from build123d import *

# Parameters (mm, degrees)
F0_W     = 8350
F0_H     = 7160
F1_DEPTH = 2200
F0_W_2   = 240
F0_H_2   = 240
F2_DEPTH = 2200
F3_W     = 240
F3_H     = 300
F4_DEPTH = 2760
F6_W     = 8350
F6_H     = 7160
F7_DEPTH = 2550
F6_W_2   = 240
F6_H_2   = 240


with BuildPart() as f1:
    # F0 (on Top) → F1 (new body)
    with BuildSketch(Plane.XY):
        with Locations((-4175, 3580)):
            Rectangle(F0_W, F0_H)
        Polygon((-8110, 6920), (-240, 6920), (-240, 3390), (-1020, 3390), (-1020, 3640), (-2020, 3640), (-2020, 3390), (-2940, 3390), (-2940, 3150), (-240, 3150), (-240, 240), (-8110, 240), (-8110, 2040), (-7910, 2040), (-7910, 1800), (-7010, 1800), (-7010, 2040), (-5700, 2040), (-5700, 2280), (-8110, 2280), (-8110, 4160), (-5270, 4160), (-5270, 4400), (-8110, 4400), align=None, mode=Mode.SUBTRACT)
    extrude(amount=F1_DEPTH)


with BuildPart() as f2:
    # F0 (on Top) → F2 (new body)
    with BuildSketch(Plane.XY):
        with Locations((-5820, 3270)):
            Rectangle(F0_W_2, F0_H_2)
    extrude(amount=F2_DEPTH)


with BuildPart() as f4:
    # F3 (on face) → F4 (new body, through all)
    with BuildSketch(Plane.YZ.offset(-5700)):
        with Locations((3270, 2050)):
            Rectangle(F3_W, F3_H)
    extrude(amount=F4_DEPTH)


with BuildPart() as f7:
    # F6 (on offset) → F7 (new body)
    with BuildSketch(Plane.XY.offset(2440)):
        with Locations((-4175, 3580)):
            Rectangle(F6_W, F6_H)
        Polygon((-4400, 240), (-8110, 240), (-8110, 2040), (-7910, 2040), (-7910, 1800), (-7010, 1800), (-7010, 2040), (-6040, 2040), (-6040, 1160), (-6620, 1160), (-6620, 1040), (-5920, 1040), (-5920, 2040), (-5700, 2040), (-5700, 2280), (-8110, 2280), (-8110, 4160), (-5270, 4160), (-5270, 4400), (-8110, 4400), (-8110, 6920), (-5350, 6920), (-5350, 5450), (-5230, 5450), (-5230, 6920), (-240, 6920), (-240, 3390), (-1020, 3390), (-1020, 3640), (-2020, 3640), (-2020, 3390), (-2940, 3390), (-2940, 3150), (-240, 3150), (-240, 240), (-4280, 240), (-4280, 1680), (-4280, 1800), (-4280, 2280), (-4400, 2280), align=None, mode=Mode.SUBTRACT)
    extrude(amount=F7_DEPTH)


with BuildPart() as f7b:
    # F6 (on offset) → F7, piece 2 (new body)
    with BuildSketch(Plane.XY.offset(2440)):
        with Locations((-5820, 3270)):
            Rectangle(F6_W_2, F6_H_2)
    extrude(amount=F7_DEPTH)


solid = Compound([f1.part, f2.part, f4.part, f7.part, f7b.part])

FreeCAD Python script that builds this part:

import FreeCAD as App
import Part
import Sketcher

V = App.Vector


def add_polygon(sketch, points):
    """Adds a closed chain of lines whose ends are joined by coincident constraints."""
    first, n = sketch.GeometryCount, len(points)
    for a, b in zip(points, points[1:] + points[:1]):
        sketch.addGeometry(Part.LineSegment(App.Vector(*a, 0), App.Vector(*b, 0)), False)
    for i in range(n):
        sketch.addConstraint(Sketcher.Constraint("Coincident", first + i, 2, first + (i + 1) % n, 1))

doc = App.newDocument("Part")
body = doc.addObject("PartDesign::Body", "Body")

# Sketch on XY plane
sketch1 = body.newObject("Sketcher::SketchObject", "Sketch")
sketch1.AttachmentSupport = (doc.getObject("XY_Plane"), [""])
sketch1.MapMode = "FlatFace"
add_polygon(sketch1, [(-8350, 7160), (-8350, 0), (0, 0), (0, 7160)])  # lines 0-3
add_polygon(sketch1, [(-8110, 4400), (-8110, 6920), (-240, 6920), (-240, 3390), (-1020, 3390), (-1020, 3640), (-2020, 3640), (-2020, 3390), (-2940, 3390), (-2940, 3150), (-240, 3150), (-240, 240), (-8110, 240), (-8110, 2040), (-7910, 2040), (-7910, 1800), (-7010, 1800), (-7010, 2040), (-5700, 2040), (-5700, 2280), (-8110, 2280), (-8110, 4160), (-5270, 4160), (-5270, 4400)])  # lines 4-27
sketch1.addConstraint([
    Sketcher.Constraint("Vertical", 0),
    Sketcher.Constraint("Horizontal", 1),
    Sketcher.Constraint("Vertical", 2),
    Sketcher.Constraint("Horizontal", 3),
    Sketcher.Constraint("Vertical", 4),
    Sketcher.Constraint("Horizontal", 5),
    Sketcher.Constraint("Vertical", 6),
    Sketcher.Constraint("Horizontal", 7),
    Sketcher.Constraint("Vertical", 8),
    Sketcher.Constraint("Horizontal", 9),
    Sketcher.Constraint("Vertical", 10),
    Sketcher.Constraint("Horizontal", 11),
    Sketcher.Constraint("Vertical", 12),
    Sketcher.Constraint("Horizontal", 13),
    Sketcher.Constraint("Vertical", 14),
    Sketcher.Constraint("Horizontal", 15),
    Sketcher.Constraint("Vertical", 16),
    Sketcher.Constraint("Horizontal", 17),
    Sketcher.Constraint("Vertical", 18),
    Sketcher.Constraint("Horizontal", 19),
    Sketcher.Constraint("Vertical", 20),
    Sketcher.Constraint("Horizontal", 21),
    Sketcher.Constraint("Vertical", 22),
    Sketcher.Constraint("Horizontal", 23),
    Sketcher.Constraint("Vertical", 24),
    Sketcher.Constraint("Horizontal", 25),
    Sketcher.Constraint("Vertical", 26),
    Sketcher.Constraint("Horizontal", 27),
    Sketcher.Constraint("Coincident", 1, 2, -1, 1),
    Sketcher.Constraint("Horizontal", 7, 2, 10, 2),
    Sketcher.Constraint("Horizontal", 17, 2, 20, 2),
    Sketcher.Constraint("Vertical", 6, 2, 13, 2),
    Sketcher.Constraint("Vertical", 4, 2, 15, 2),
    Sketcher.Constraint("Vertical", 16, 2, 23, 2),
    Sketcher.Constraint("Equal", 12, 18),
    Sketcher.Constraint("Equal", 20, 22),
    Sketcher.Constraint("Equal", 22, 26),
    Sketcher.Constraint("DistanceX", 1, 1, 1, 2, 8350.0),
    Sketcher.Constraint("DistanceX", 5, 1, 5, 2, 7870.0),
    Sketcher.Constraint("DistanceX", 7, 2, 7, 1, 780.0),
    Sketcher.Constraint("DistanceX", 9, 2, 9, 1, 1000.0),
    Sketcher.Constraint("DistanceX", 11, 2, 11, 1, 920.0),
    Sketcher.Constraint("DistanceX", 17, 1, 17, 2, 200.0),
    Sketcher.Constraint("DistanceX", 19, 1, 19, 2, 900.0),
    Sketcher.Constraint("DistanceX", 21, 1, 21, 2, 1310.0),
    Sketcher.Constraint("DistanceX", 25, 1, 25, 2, 2840.0),
    Sketcher.Constraint("DistanceY", 0, 2, 0, 1, 7160.0),
    Sketcher.Constraint("DistanceY", 4, 1, 4, 2, 2520.0),
    Sketcher.Constraint("DistanceY", 6, 2, 6, 1, 3530.0),
    Sketcher.Constraint("DistanceY", 8, 1, 8, 2, 250.0),
    Sketcher.Constraint("DistanceY", 12, 2, 12, 1, 240.0),
    Sketcher.Constraint("DistanceY", 14, 2, 14, 1, 2910.0),
    Sketcher.Constraint("DistanceY", 16, 1, 16, 2, 1800.0),
    Sketcher.Constraint("DistanceX", 4, 2, -1, 1, 8110.0),
    Sketcher.Constraint("DistanceY", -1, 1, 4, 2, 6920.0),
])
pad1 = body.newObject("PartDesign::Pad", "Pad")
pad1.Profile = sketch1
pad1.Length = 2200
body2 = doc.addObject("PartDesign::Body", "Body001")

# Sketch on XY plane
sketch2 = body2.newObject("Sketcher::SketchObject", "Sketch001")
sketch2.AttachmentSupport = (doc.getObject("XY_Plane001"), [""])
sketch2.MapMode = "FlatFace"
add_polygon(sketch2, [(-5940, 3390), (-5940, 3150), (-5700, 3150), (-5700, 3390)])  # lines 0-3
sketch2.addConstraint([
    Sketcher.Constraint("Vertical", 0),
    Sketcher.Constraint("Horizontal", 1),
    Sketcher.Constraint("Vertical", 2),
    Sketcher.Constraint("Horizontal", 3),
    Sketcher.Constraint("Equal", 3, 0),
    Sketcher.Constraint("DistanceX", 1, 1, 1, 2, 240.0),
    Sketcher.Constraint("DistanceX", 0, 2, -1, 1, 5940.0),
    Sketcher.Constraint("DistanceY", -1, 1, 0, 2, 3150.0),
])
pad2 = body2.newObject("PartDesign::Pad", "Pad001")
pad2.Profile = sketch2
pad2.Length = 2200
body3 = doc.addObject("PartDesign::Body", "Body002")

# Sketch on YZ plane
sketch3 = body3.newObject("Sketcher::SketchObject", "Sketch002")
sketch3.AttachmentSupport = (doc.getObject("YZ_Plane002"), [""])
sketch3.MapMode = "FlatFace"
sketch3.AttachmentOffset = App.Placement(V(0, 0, -5700), App.Rotation())
add_polygon(sketch3, [(3150, 2200), (3150, 1900), (3390, 1900), (3390, 2200)])  # lines 0-3
sketch3.addConstraint([
    Sketcher.Constraint("Vertical", 0),
    Sketcher.Constraint("Horizontal", 1),
    Sketcher.Constraint("Vertical", 2),
    Sketcher.Constraint("Horizontal", 3),
    Sketcher.Constraint("DistanceX", 1, 1, 1, 2, 240.0),
    Sketcher.Constraint("DistanceY", 0, 2, 0, 1, 300.0),
    Sketcher.Constraint("DistanceX", -1, 1, 0, 2, 3150.0),
    Sketcher.Constraint("DistanceY", -1, 1, 0, 2, 1900.0),
])
pad3 = body3.newObject("PartDesign::Pad", "Pad002")
pad3.Profile = sketch3
pad3.Length = 2760
body4 = doc.addObject("PartDesign::Body", "Body003")

# Sketch on XY plane
sketch4 = body4.newObject("Sketcher::SketchObject", "Sketch003")
sketch4.AttachmentSupport = (doc.getObject("XY_Plane003"), [""])
sketch4.MapMode = "FlatFace"
sketch4.AttachmentOffset = App.Placement(V(0, 0, 2440), App.Rotation())
add_polygon(sketch4, [(-8350, 7160), (-8350, 0), (0, 0), (0, 7160)])  # lines 0-3
add_polygon(sketch4, [(-4400, 2280), (-4400, 240), (-8110, 240), (-8110, 2040), (-7910, 2040), (-7910, 1800), (-7010, 1800), (-7010, 2040), (-6040, 2040), (-6040, 1160), (-6620, 1160), (-6620, 1040), (-5920, 1040), (-5920, 2040), (-5700, 2040), (-5700, 2280), (-8110, 2280), (-8110, 4160), (-5270, 4160), (-5270, 4400), (-8110, 4400), (-8110, 6920), (-5350, 6920), (-5350, 5450), (-5230, 5450), (-5230, 6920), (-240, 6920), (-240, 3390), (-1020, 3390), (-1020, 3640), (-2020, 3640), (-2020, 3390), (-2940, 3390), (-2940, 3150), (-240, 3150), (-240, 240), (-4280, 240), (-4280, 2280)])  # lines 4-41
sketch4.addConstraint([
    Sketcher.Constraint("Vertical", 0),
    Sketcher.Constraint("Horizontal", 1),
    Sketcher.Constraint("Vertical", 2),
    Sketcher.Constraint("Horizontal", 3),
    Sketcher.Constraint("Vertical", 4),
    Sketcher.Constraint("Horizontal", 5),
    Sketcher.Constraint("Vertical", 6),
    Sketcher.Constraint("Horizontal", 7),
    Sketcher.Constraint("Vertical", 8),
    Sketcher.Constraint("Horizontal", 9),
    Sketcher.Constraint("Vertical", 10),
    Sketcher.Constraint("Horizontal", 11),
    Sketcher.Constraint("Vertical", 12),
    Sketcher.Constraint("Horizontal", 13),
    Sketcher.Constraint("Vertical", 14),
    Sketcher.Constraint("Horizontal", 15),
    Sketcher.Constraint("Vertical", 16),
    Sketcher.Constraint("Horizontal", 17),
    Sketcher.Constraint("Vertical", 18),
    Sketcher.Constraint("Horizontal", 19),
    Sketcher.Constraint("Vertical", 20),
    Sketcher.Constraint("Horizontal", 21),
    Sketcher.Constraint("Vertical", 22),
    Sketcher.Constraint("Horizontal", 23),
    Sketcher.Constraint("Vertical", 24),
    Sketcher.Constraint("Horizontal", 25),
    Sketcher.Constraint("Vertical", 26),
    Sketcher.Constraint("Horizontal", 27),
    Sketcher.Constraint("Vertical", 28),
    Sketcher.Constraint("Horizontal", 29),
    Sketcher.Constraint("Vertical", 30),
    Sketcher.Constraint("Horizontal", 31),
    Sketcher.Constraint("Vertical", 32),
    Sketcher.Constraint("Horizontal", 33),
    Sketcher.Constraint("Vertical", 34),
    Sketcher.Constraint("Horizontal", 35),
    Sketcher.Constraint("Vertical", 36),
    Sketcher.Constraint("Horizontal", 37),
    Sketcher.Constraint("Vertical", 38),
    Sketcher.Constraint("Horizontal", 39),
    Sketcher.Constraint("Vertical", 40),
    Sketcher.Constraint("Horizontal", 41),
    Sketcher.Constraint("Coincident", 1, 2, -1, 1),
    Sketcher.Constraint("Horizontal", 7, 2, 10, 2),
    Sketcher.Constraint("Horizontal", 11, 2, 16, 2),
    Sketcher.Constraint("Horizontal", 25, 2, 28, 2),
    Sketcher.Constraint("Horizontal", 31, 2, 34, 2),
    Sketcher.Constraint("Horizontal", 5, 2, 38, 2),
    Sketcher.Constraint("Horizontal", 19, 2, 40, 2),
    Sketcher.Constraint("Vertical", 6, 2, 19, 2),
    Sketcher.Constraint("Vertical", 20, 2, 23, 2),
    Sketcher.Constraint("Vertical", 30, 2, 37, 2),
    Sketcher.Constraint("Equal", 27, 41),
    Sketcher.Constraint("Equal", 41, 14),
    Sketcher.Constraint("Equal", 33, 16),
    Sketcher.Constraint("Equal", 10, 18),
    Sketcher.Constraint("Equal", 18, 22),
    Sketcher.Constraint("Equal", 22, 36),
    Sketcher.Constraint("DistanceX", 1, 1, 1, 2, 8350.0),
    Sketcher.Constraint("DistanceX", 5, 2, 5, 1, 3710.0),
    Sketcher.Constraint("DistanceX", 7, 1, 7, 2, 200.0),
    Sketcher.Constraint("DistanceX", 9, 1, 9, 2, 900.0),
    Sketcher.Constraint("DistanceX", 11, 1, 11, 2, 970.0),
    Sketcher.Constraint("DistanceX", 13, 2, 13, 1, 580.0),
    Sketcher.Constraint("DistanceX", 15, 1, 15, 2, 700.0),
    Sketcher.Constraint("DistanceX", 17, 1, 17, 2, 220.0),
    Sketcher.Constraint("DistanceX", 21, 1, 21, 2, 2840.0),
    Sketcher.Constraint("DistanceX", 25, 1, 25, 2, 2760.0),
    Sketcher.Constraint("DistanceX", 27, 1, 27, 2, 120.0),
    Sketcher.Constraint("DistanceX", 29, 1, 29, 2, 4990.0),
    Sketcher.Constraint("DistanceX", 31, 2, 31, 1, 780.0),
    Sketcher.Constraint("DistanceX", 33, 2, 33, 1, 1000.0),
    Sketcher.Constraint("DistanceX", 35, 2, 35, 1, 920.0),
    Sketcher.Constraint("DistanceY", 0, 2, 0, 1, 7160.0),
    Sketcher.Constraint("DistanceY", 4, 2, 4, 1, 2040.0),
    Sketcher.Constraint("DistanceY", 6, 1, 6, 2, 1800.0),
    Sketcher.Constraint("DistanceY", 20, 1, 20, 2, 1880.0),
    Sketcher.Constraint("DistanceY", 24, 1, 24, 2, 2520.0),
    Sketcher.Constraint("DistanceY", 26, 2, 26, 1, 1470.0),
    Sketcher.Constraint("DistanceY", 30, 2, 30, 1, 3530.0),
    Sketcher.Constraint("DistanceY", 32, 1, 32, 2, 250.0),
    Sketcher.Constraint("DistanceX", 4, 2, -1, 1, 4400.0),
    Sketcher.Constraint("DistanceY", -1, 1, 4, 2, 240.0),
])
pad4 = body4.newObject("PartDesign::Pad", "Pad003")
pad4.Profile = sketch4
pad4.Length = 2550
body5 = doc.addObject("PartDesign::Body", "Body004")

# Sketch on XY plane
sketch5 = body5.newObject("Sketcher::SketchObject", "Sketch004")
sketch5.AttachmentSupport = (doc.getObject("XY_Plane004"), [""])
sketch5.MapMode = "FlatFace"
sketch5.AttachmentOffset = App.Placement(V(0, 0, 2440), App.Rotation())
add_polygon(sketch5, [(-5940, 3390), (-5940, 3150), (-5700, 3150), (-5700, 3390)])  # lines 0-3
sketch5.addConstraint([
    Sketcher.Constraint("Vertical", 0),
    Sketcher.Constraint("Horizontal", 1),
    Sketcher.Constraint("Vertical", 2),
    Sketcher.Constraint("Horizontal", 3),
    Sketcher.Constraint("Equal", 3, 0),
    Sketcher.Constraint("DistanceX", 1, 1, 1, 2, 240.0),
    Sketcher.Constraint("DistanceX", 0, 2, -1, 1, 5940.0),
    Sketcher.Constraint("DistanceY", -1, 1, 0, 2, 3150.0),
])
pad5 = body5.newObject("PartDesign::Pad", "Pad004")
pad5.Profile = sketch5
pad5.Length = 2550

doc.recompute()
